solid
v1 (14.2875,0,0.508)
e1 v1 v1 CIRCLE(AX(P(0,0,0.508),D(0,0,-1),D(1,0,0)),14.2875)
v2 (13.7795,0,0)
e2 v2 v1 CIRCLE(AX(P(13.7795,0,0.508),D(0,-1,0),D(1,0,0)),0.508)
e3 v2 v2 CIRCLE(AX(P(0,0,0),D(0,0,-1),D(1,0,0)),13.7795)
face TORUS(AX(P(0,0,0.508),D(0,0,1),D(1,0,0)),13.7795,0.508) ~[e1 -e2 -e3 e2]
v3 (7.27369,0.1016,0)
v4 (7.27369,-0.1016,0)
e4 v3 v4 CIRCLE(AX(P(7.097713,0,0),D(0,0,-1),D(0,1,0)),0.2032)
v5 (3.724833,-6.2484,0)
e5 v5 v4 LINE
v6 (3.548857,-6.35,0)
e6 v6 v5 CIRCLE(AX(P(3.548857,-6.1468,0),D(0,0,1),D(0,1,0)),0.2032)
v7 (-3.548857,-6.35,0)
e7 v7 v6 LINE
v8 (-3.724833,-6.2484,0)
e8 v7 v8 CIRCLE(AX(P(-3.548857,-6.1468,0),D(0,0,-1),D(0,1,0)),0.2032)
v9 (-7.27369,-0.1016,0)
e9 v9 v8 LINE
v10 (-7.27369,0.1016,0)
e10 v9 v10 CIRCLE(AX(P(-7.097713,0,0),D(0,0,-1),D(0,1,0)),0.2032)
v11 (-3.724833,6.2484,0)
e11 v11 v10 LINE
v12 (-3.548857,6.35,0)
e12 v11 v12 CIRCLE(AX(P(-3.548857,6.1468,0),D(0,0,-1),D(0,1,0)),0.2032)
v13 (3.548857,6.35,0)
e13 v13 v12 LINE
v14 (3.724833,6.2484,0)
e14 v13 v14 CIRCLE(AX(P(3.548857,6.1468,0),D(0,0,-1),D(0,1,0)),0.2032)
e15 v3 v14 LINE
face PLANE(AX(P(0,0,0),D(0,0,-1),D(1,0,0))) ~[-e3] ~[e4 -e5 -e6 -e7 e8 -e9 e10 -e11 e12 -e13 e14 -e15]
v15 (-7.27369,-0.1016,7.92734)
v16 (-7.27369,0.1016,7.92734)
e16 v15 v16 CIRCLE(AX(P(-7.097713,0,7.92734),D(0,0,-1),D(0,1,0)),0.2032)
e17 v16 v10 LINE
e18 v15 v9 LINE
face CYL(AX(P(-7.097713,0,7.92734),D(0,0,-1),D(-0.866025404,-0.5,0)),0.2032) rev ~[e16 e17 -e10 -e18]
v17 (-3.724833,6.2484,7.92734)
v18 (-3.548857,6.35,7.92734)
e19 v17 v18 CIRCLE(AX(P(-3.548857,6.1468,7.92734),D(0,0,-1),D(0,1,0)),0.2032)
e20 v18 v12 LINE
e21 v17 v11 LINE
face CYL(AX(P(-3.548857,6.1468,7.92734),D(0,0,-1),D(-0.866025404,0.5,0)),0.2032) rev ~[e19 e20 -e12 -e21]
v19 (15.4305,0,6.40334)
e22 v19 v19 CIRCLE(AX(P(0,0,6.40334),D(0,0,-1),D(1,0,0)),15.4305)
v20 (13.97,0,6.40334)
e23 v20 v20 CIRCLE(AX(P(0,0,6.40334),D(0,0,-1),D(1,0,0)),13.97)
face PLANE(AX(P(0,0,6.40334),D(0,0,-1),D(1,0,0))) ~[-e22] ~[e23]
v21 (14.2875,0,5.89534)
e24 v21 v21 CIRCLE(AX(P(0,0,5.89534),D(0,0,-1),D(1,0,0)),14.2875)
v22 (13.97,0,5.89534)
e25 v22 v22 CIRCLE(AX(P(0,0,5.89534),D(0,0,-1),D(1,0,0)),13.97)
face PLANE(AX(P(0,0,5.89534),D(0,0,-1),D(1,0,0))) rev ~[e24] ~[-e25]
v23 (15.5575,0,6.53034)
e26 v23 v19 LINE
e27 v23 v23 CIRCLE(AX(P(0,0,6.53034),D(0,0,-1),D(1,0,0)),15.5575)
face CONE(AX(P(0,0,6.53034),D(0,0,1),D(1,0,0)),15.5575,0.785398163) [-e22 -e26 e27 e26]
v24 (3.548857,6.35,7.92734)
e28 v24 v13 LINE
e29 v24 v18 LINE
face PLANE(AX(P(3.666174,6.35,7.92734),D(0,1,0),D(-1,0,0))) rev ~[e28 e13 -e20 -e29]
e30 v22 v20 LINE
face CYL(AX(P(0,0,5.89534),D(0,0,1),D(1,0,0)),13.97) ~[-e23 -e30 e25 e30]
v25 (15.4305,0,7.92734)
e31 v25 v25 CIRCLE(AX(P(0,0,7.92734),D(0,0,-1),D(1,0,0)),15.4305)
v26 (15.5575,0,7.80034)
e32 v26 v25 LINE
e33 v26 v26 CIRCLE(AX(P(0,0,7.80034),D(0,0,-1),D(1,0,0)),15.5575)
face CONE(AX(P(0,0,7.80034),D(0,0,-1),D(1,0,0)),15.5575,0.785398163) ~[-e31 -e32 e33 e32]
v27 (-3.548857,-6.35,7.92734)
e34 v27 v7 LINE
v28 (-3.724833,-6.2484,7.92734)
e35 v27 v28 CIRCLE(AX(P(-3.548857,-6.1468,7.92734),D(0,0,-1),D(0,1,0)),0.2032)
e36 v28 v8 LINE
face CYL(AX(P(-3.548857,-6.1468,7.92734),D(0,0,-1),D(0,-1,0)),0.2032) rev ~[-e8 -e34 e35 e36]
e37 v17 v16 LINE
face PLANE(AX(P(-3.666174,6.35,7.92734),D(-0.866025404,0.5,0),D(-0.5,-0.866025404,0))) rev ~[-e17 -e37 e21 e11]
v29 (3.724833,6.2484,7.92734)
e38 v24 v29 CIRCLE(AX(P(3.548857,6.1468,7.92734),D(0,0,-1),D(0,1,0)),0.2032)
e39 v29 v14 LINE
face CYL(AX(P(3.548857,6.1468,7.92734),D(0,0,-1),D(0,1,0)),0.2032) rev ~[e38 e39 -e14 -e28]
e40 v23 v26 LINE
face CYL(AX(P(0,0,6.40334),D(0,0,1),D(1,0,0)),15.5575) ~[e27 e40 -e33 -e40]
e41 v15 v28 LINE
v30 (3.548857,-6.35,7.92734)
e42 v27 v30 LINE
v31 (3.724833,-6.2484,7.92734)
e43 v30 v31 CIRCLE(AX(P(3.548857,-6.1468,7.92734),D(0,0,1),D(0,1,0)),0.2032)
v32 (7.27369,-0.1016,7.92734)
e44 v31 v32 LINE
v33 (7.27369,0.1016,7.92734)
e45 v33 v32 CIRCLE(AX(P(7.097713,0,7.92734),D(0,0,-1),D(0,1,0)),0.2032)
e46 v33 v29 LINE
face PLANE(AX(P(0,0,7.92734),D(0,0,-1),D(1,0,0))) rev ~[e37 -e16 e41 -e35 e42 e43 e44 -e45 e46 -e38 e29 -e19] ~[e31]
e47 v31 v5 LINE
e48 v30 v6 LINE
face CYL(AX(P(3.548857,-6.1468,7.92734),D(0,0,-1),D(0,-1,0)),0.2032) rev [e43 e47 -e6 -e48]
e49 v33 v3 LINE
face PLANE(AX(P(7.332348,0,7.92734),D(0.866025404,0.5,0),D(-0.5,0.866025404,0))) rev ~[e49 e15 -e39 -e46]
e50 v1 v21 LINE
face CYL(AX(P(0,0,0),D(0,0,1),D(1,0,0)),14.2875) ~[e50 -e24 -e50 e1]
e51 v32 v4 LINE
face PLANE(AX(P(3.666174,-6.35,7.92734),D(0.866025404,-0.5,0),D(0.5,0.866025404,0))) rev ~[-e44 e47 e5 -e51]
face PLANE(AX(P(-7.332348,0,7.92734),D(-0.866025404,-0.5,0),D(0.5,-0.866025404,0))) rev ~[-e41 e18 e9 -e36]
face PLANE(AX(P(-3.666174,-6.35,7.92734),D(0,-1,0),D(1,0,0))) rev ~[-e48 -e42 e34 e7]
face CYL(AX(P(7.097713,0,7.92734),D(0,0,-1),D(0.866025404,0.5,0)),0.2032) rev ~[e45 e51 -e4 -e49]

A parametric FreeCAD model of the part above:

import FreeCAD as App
import Part
import Sketcher
from FreeCAD import Vector
Q = App.Units.Quantity


def edges_at(feature, points):
    """Names of the edges that pass closest to the given points."""
    edges = feature.Shape.Edges
    near = lambda p: min(range(len(edges)), key=lambda i: edges[i].distToShape(Part.Vertex(*p))[0])
    return sorted({f"Edge{near(p) + 1}" for p in points})


def add_polygon(sketch, points):
    """Adds a closed chain of lines whose ends are joined by coincident constraints."""
    first, n = sketch.GeometryCount, len(points)
    for a, b in zip(points, points[1:] + points[:1]):
        sketch.addGeometry(Part.LineSegment(App.Vector(*a, 0), App.Vector(*b, 0)), False)
    for i in range(n):
        sketch.addConstraint(Sketcher.Constraint("Coincident", first + i, 2, first + (i + 1) % n, 1))

doc = App.newDocument("Part")
body = doc.addObject("PartDesign::Body", "Body")

sketch1 = doc.addObject("Sketcher::SketchObject", "Sketch")
body.addObject(sketch1)
sketch1.AttachmentSupport = (doc.XZ_Plane, [""])
sketch1.MapMode = "FlatFace"
add_polygon(sketch1, [(15.43, 7.93), (0, 7.93), (0, 0), (14.29, 0), (14.29, 5.9), (13.97, 5.9), (13.97, 6.4), (15.56, 6.4), (15.56, 7.8)])
sketch1.addConstraint([
    Sketcher.Constraint("Horizontal", 0),
    Sketcher.Constraint("Vertical", 1),
    Sketcher.Constraint("Horizontal", 2),
    Sketcher.Constraint("Vertical", 3),
    Sketcher.Constraint("Horizontal", 4),
    Sketcher.Constraint("Vertical", 5),
    Sketcher.Constraint("Horizontal", 6),
    Sketcher.Constraint("Vertical", 7),
    Sketcher.Constraint("Coincident", 1, 2, -1, 1),
    Sketcher.Constraint("Angle", 8, Q("135 deg")),
    Sketcher.Constraint("DistanceY", 5, 1, 5, 2, Q("0.02 in")),
    Sketcher.Constraint("DistanceX", 2, 1, 2, 2, Q("0.5625 in")),
    Sketcher.Constraint("DistanceX", 6, 1, 6, 2, Q("0.0625 in")),
    Sketcher.Constraint("DistanceY", 7, 1, 7, 2, Q("0.055 in")),
    Sketcher.Constraint("DistanceX", -1, 1, 4, 2, Q("0.55 in")),
    Sketcher.Constraint("DistanceY", 3, 2, 0, 2, Q("0.08 in")),
    Sketcher.Constraint("DistanceY", 1, 2, 1, 1, Q("0.3121 in")),
])
revolution = doc.addObject("PartDesign::Revolution", "Revolution")
body.addObject(revolution)
revolution.Profile = sketch1
revolution.ReferenceAxis = (sketch1, ["V_Axis"])
revolution.Angle = 360

sketch2 = doc.addObject("Sketcher::SketchObject", "Sketch001")
body.addObject(sketch2)
sketch2.AttachmentSupport = (doc.XY_Plane, [""])
sketch2.MapMode = "FlatFace"
sketch2.AttachmentOffset = App.Placement(Vector(0, 0, 0.3121 * 25.4), App.Rotation())
add_polygon(sketch2, [(4, -6), (7, 0), (4, 6), (-4, 6), (-7, 0), (-4, -6)])
sketch2.addConstraint([
    Sketcher.Constraint("Horizontal", 2),
    Sketcher.Constraint("Horizontal", 5),
    Sketcher.Constraint("Symmetric", 0, 2, 3, 2, -1, 1),
    Sketcher.Constraint("Symmetric", 1, 2, 4, 2, -1, 1),
    Sketcher.Constraint("PointOnObject", 0, 2, -1),
    Sketcher.Constraint("Parallel", 0, 3),
    Sketcher.Constraint("Vertical", 2, 2, 4, 2),
    Sketcher.Constraint("Angle", 0, Q("60 deg")),
    Sketcher.Constraint("DistanceY", 4, 2, 2, 2, Q("0.5 in")),
    Sketcher.Constraint("DistanceX", 2, 2, 2, 1, Q("7.332348 mm")),
])
pocket1 = doc.addObject("PartDesign::Pocket", "Pocket")
body.addObject(pocket1)
pocket1.Profile = sketch2
pocket1.Type = "ThroughAll"
doc.recompute()

chamfer = doc.addObject("PartDesign::Chamfer", "Chamfer")
body.addObject(chamfer)
chamfer.Base = (pocket1, edges_at(pocket1, [(-15.557, 0, 6.403)]))
chamfer.Size = Q("0.005 in")
doc.recompute()

fillet = doc.addObject("PartDesign::Fillet", "Fillet")
body.addObject(fillet)
fillet.Base = (chamfer, edges_at(chamfer, [
    (3.666, -6.35, 3.964),
    (-3.666, -6.35, 3.964),
    (-7.332, 0, 3.964),
    (-3.666, 6.35, 3.964),
    (3.666, 6.35, 3.964),
    (7.332, 0, 3.964),
]))
fillet.Radius = Q("0.008 in")
doc.recompute()

fillet2 = doc.addObject("PartDesign::Fillet", "Fillet001")
body.addObject(fillet2)
fillet2.Base = (fillet, edges_at(fillet, [(-14.287, 0, 0)]))
fillet2.Radius = Q("0.02 in")

doc.recompute()
